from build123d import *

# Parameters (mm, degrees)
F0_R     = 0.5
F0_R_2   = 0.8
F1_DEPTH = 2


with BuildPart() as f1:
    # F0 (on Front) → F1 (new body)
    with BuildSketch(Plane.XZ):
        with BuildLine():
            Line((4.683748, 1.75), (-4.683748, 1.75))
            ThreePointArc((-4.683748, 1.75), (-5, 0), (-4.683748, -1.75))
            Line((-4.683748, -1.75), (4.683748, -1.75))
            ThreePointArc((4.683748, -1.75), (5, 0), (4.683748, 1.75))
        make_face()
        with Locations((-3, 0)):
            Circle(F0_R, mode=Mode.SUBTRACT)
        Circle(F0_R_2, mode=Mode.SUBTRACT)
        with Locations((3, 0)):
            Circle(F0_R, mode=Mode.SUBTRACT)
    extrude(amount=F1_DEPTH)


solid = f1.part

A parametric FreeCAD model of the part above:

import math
import FreeCAD as App
import Part
import Sketcher

V = App.Vector

doc = App.newDocument("Part")
body = doc.addObject("PartDesign::Body", "Body")

# Sketch on XZ plane
sketch1 = body.newObject("Sketcher::SketchObject", "Sketch")
sketch1.AttachmentSupport = (doc.getObject("XZ_Plane"), [""])
sketch1.MapMode = "FlatFace"
sketch1.addGeometry(Part.LineSegment(V(4.7, 1.8, 0), V(-4.7, 1.8, 0)), False)
sketch1.addGeometry(Part.ArcOfCircle(Part.Circle(V(0, 0, 0), V(0, 0, 1), 5), math.radians(160), math.radians(200)), False)
sketch1.addGeometry(Part.LineSegment(V(-4.7, -1.8, 0), V(4.7, -1.8, 0)), False)
sketch1.addGeometry(Part.ArcOfCircle(Part.Circle(V(0, 0, 0), V(0, 0, 1), 5), math.radians(-20), math.radians(20)), False)
sketch1.addGeometry(Part.Circle(V(-3, 0, 0), V(0, 0, 1), 0.5), False)
sketch1.addGeometry(Part.Circle(V(0, 0, 0), V(0, 0, 1), 0.8), False)
sketch1.addGeometry(Part.Circle(V(3, 0, 0), V(0, 0, 1), 0.5), False)
sketch1.addConstraint(Sketcher.Constraint("Coincident", 0, 2, 1, 1))
sketch1.addConstraint(Sketcher.Constraint("Coincident", 1, 2, 2, 1))
sketch1.addConstraint(Sketcher.Constraint("Coincident", 2, 2, 3, 1))
sketch1.addConstraint(Sketcher.Constraint("Coincident", 3, 2, 0, 1))
sketch1.addConstraint(Sketcher.Constraint("Horizontal", 0))
sketch1.addConstraint(Sketcher.Constraint("Horizontal", 2))
sketch1.addConstraint(Sketcher.Constraint("Coincident", 1, 3, -1, 1))
sketch1.addConstraint(Sketcher.Constraint("Coincident", 3, 3, -1, 1))
sketch1.addConstraint(Sketcher.Constraint("Coincident", 5, 3, -1, 1))
sketch1.addConstraint(Sketcher.Constraint("Equal", 1, 3))
sketch1.addConstraint(Sketcher.Constraint("Equal", 4, 6))
sketch1.addConstraint(Sketcher.Constraint("Symmetric", 4, 3, 6, 3, -1, 1))
sketch1.addConstraint(Sketcher.Constraint("PointOnObject", 4, 3, -1))
sketch1.addConstraint(Sketcher.Constraint("Vertical", 0, 2, 1, 2))
sketch1.addConstraint(Sketcher.Constraint("Diameter", 4, 1.0))
sketch1.addConstraint(Sketcher.Constraint("Diameter", 5, 1.6))
sketch1.addConstraint(Sketcher.Constraint("DistanceX", 4, 3, -1, 1, 3.0))
sketch1.addConstraint(Sketcher.Constraint("DistanceY", 1, 2, 0, 2, 3.5))
sketch1.addConstraint(Sketcher.Constraint("Radius", 1, 4.999993))
pad1 = body.newObject("PartDesign::Pad", "Pad")
pad1.Profile = sketch1
pad1.Length = 2

doc.recompute()
